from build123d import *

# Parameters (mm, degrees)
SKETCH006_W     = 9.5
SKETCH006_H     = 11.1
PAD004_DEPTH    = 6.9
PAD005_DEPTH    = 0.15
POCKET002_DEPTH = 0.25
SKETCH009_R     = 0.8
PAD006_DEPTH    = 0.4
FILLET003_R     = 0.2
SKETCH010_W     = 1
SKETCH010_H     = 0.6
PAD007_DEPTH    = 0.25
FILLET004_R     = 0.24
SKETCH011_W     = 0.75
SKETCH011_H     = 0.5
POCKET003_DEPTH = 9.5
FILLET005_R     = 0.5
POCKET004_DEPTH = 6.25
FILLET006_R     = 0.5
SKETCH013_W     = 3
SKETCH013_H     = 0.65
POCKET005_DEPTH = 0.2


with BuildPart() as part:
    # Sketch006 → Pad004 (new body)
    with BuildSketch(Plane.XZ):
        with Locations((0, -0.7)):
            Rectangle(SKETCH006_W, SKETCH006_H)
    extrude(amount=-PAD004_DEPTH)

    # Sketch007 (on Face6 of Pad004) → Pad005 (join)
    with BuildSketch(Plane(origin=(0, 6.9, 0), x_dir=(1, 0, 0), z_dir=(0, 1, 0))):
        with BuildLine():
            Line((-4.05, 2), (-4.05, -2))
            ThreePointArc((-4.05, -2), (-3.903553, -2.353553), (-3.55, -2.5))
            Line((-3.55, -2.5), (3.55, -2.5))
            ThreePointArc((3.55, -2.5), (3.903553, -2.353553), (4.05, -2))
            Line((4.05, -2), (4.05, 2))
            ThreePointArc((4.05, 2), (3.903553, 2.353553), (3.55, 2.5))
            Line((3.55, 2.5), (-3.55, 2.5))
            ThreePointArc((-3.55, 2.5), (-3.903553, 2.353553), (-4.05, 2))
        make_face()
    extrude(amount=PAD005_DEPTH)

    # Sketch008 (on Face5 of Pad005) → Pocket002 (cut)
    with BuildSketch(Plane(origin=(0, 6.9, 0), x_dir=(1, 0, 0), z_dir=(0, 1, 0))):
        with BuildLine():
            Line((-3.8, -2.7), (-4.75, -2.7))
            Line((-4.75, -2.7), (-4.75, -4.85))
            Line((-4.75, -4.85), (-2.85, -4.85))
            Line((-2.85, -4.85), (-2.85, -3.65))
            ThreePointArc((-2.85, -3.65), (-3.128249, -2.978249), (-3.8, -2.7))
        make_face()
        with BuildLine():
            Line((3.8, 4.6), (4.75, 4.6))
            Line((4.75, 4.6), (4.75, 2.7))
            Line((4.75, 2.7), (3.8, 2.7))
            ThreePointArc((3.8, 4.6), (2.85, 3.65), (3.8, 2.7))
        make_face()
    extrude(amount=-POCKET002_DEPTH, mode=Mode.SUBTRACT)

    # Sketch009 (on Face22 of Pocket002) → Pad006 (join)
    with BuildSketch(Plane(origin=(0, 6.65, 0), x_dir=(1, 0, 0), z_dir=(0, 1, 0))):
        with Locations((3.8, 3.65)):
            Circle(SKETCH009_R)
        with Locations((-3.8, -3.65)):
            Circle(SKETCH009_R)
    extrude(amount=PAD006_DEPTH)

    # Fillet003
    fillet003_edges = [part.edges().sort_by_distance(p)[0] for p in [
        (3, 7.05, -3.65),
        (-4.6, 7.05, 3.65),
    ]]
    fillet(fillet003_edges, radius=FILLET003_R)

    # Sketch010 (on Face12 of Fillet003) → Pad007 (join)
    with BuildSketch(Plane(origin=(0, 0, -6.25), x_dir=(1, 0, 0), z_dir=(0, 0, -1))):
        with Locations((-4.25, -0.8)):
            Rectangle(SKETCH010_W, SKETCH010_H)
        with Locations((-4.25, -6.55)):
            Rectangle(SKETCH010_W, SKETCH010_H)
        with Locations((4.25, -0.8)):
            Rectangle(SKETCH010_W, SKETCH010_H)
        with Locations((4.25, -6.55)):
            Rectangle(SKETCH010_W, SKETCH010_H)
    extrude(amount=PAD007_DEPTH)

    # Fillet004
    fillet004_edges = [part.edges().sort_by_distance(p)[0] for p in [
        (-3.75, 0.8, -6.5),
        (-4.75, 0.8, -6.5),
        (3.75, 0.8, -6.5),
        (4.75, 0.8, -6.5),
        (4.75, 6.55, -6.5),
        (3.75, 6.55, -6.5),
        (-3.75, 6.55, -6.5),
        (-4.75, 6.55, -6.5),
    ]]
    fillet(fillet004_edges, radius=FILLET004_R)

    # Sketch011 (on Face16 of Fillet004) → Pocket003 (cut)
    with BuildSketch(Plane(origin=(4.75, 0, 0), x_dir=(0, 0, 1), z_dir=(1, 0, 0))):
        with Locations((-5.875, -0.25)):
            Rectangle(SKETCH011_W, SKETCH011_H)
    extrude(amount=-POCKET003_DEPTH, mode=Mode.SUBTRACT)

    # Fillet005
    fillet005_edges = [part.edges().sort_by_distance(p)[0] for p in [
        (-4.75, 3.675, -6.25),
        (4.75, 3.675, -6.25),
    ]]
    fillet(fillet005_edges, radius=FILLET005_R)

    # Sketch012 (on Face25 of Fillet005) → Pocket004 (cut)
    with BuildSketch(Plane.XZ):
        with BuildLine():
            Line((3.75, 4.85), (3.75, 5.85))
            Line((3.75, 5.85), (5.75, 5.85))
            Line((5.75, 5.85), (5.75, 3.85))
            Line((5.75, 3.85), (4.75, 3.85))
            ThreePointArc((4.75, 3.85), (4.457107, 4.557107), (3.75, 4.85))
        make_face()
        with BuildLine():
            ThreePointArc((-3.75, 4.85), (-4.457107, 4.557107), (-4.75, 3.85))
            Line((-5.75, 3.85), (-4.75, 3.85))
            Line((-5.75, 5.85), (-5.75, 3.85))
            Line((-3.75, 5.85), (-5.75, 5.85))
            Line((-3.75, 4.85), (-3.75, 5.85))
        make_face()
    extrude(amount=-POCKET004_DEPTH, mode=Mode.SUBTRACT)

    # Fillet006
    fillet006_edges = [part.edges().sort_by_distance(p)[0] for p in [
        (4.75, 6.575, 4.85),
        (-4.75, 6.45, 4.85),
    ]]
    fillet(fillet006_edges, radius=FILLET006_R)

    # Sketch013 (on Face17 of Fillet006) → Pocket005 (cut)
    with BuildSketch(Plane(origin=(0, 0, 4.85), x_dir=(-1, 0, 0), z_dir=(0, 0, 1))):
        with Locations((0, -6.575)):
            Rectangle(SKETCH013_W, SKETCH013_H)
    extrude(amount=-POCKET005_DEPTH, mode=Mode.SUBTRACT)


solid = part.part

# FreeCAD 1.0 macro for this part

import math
import FreeCAD as App
import Part
import Sketcher


def edges_at(feature, points):
    """Names of the edges that pass closest to the given points."""
    edges = feature.Shape.Edges
    near = lambda p: min(range(len(edges)), key=lambda i: edges[i].distToShape(Part.Vertex(*p))[0])
    return sorted({f"Edge{near(p) + 1}" for p in points})

doc = App.newDocument("Part")
body = doc.addObject("PartDesign::Body", "Body")

# Sketch on XZ plane
sketch1 = body.newObject("Sketcher::SketchObject", "Sketch")
sketch1.AttachmentSupport = (doc.getObject("XZ_Plane"), [""])
sketch1.MapMode = "FlatFace"
sketch1.addGeometry([
    Part.LineSegment(App.Vector(-5, 5, 0), App.Vector(-5, -6, 0)),
    Part.LineSegment(App.Vector(-5, -6, 0), App.Vector(5, -6, 0)),
    Part.LineSegment(App.Vector(5, -6, 0), App.Vector(5, 5, 0)),
    Part.LineSegment(App.Vector(5, 5, 0), App.Vector(-5, 5, 0)),
], False)
sketch1.addConstraint([
    Sketcher.Constraint("Coincident", 0, 2, 1, 1),
    Sketcher.Constraint("Coincident", 1, 2, 2, 1),
    Sketcher.Constraint("Coincident", 2, 2, 3, 1),
    Sketcher.Constraint("Coincident", 3, 2, 0, 1),
    Sketcher.Constraint("Vertical", 0),
    Sketcher.Constraint("Horizontal", 1),
    Sketcher.Constraint("Vertical", 2),
    Sketcher.Constraint("Horizontal", 3),
    Sketcher.Constraint("DistanceX", 1, 1, 1, 2, 9.5),
    Sketcher.Constraint("DistanceY", 0, 2, 0, 1, 11.1),
    Sketcher.Constraint("DistanceX", 0, 2, -1, 1, 4.75),
    Sketcher.Constraint("DistanceY", 0, 2, -1, 1, 6.25),
])
pad1 = body.newObject("PartDesign::Pad", "Pad")
pad1.Profile = sketch1
pad1.Length = 6.9
pad1.Reversed = True

# Sketch on XZ plane
sketch2 = body.newObject("Sketcher::SketchObject", "Sketch001")
sketch2.AttachmentSupport = (doc.getObject("XZ_Plane"), [""])
sketch2.MapMode = "FlatFace"
sketch2.AttachmentOffset = App.Placement(App.Vector(0, 0, -6.9), App.Rotation())
sketch2.addGeometry([
    Part.LineSegment(App.Vector(-4, -2, 0), App.Vector(-4, 2, 0)),  # 0
    Part.ArcOfCircle(Part.Circle(App.Vector(-3.5, 2, 0), App.Vector(0, 0, 1), 0.5), math.radians(90), math.radians(180)),  # 1
    Part.LineSegment(App.Vector(-3.5, 2.5, 0), App.Vector(3.5, 2.5, 0)),  # 2
    Part.ArcOfCircle(Part.Circle(App.Vector(3.5, 2, 0), App.Vector(0, 0, 1), 0.5), math.radians(0), math.radians(90)),  # 3
    Part.LineSegment(App.Vector(4, 2, 0), App.Vector(4, -2, 0)),  # 4
    Part.ArcOfCircle(Part.Circle(App.Vector(3.5, -2, 0), App.Vector(0, 0, 1), 0.5), math.radians(-90), math.radians(0)),  # 5
    Part.LineSegment(App.Vector(3.5, -2.5, 0), App.Vector(-3.5, -2.5, 0)),  # 6
    Part.ArcOfCircle(Part.Circle(App.Vector(-3.5, -2, 0), App.Vector(0, 0, 1), 0.5), math.radians(-180), math.radians(-90)),  # 7
], False)
sketch2.addConstraint([
    Sketcher.Constraint("Coincident", 0, 2, 1, 2),
    Sketcher.Constraint("Coincident", 1, 1, 2, 1),
    Sketcher.Constraint("Coincident", 2, 2, 3, 2),
    Sketcher.Constraint("Coincident", 3, 1, 4, 1),
    Sketcher.Constraint("Coincident", 4, 2, 5, 2),
    Sketcher.Constraint("Coincident", 5, 1, 6, 1),
    Sketcher.Constraint("Coincident", 6, 2, 7, 2),
    Sketcher.Constraint("Coincident", 7, 1, 0, 1),
    Sketcher.Constraint("Vertical", 0),
    Sketcher.Constraint("Horizontal", 2),
    Sketcher.Constraint("Vertical", 4),
    Sketcher.Constraint("Horizontal", 6),
    Sketcher.Constraint("Equal", 1, 3),
    Sketcher.Constraint("Equal", 3, 5),
    Sketcher.Constraint("Equal", 5, 7),
    Sketcher.Constraint("Symmetric", 1, 3, 5, 3, -1, 1),
    Sketcher.Constraint("Horizontal", 3, 3, 0, 2),
    Sketcher.Constraint("Horizontal", 0, 2, 3, 1),
    Sketcher.Constraint("Horizontal", 7, 3, 4, 2),
    Sketcher.Constraint("Horizontal", 4, 2, 7, 1),
    Sketcher.Constraint("Vertical", 7, 3, 1, 1),
    Sketcher.Constraint("Vertical", 5, 3, 2, 2),
    Sketcher.Constraint("Vertical", 2, 2, 5, 1),
    Sketcher.Constraint("Vertical", 1, 1, 6, 2),
    Sketcher.Constraint("Radius", 1, 0.500001),
    Sketcher.Constraint("DistanceY", 0, 1, 0, 2, 4.0),
    Sketcher.Constraint("DistanceX", 2, 1, 2, 2, 7.1),
])
pad2 = body.newObject("PartDesign::Pad", "Pad001")
pad2.Profile = sketch2
pad2.Length = 0.15
pad2.Reversed = True

# Sketch on XZ plane
sketch3 = body.newObject("Sketcher::SketchObject", "Sketch002")
sketch3.AttachmentSupport = (doc.getObject("XZ_Plane"), [""])
sketch3.MapMode = "FlatFace"
sketch3.AttachmentOffset = App.Placement(App.Vector(0, 0, -6.9), App.Rotation())
sketch3.addGeometry([
    Part.LineSegment(App.Vector(-3.8, 2.7, 0), App.Vector(-4.8, 2.7, 0)),  # 0
    Part.LineSegment(App.Vector(-4.8, 2.7, 0), App.Vector(-4.8, 4.8, 0)),  # 1
    Part.LineSegment(App.Vector(-4.8, 4.8, 0), App.Vector(-2.9, 4.8, 0)),  # 2
    Part.LineSegment(App.Vector(-2.9, 4.8, 0), App.Vector(-2.9, 3.6, 0)),  # 3
    Part.ArcOfCircle(Part.Circle(App.Vector(-3.8, 3.7, 0), App.Vector(0, 0, 1), 1), math.radians(-90), math.radians(0)),  # 4
    Part.LineSegment(App.Vector(4.8, -4.6, 0), App.Vector(3.8, -4.6, 0)),  # 5
    Part.ArcOfCircle(Part.Circle(App.Vector(3.8, -3.6, 0), App.Vector(0, 0, 1), 0.9), math.radians(90), math.radians(270)),  # 6
    Part.LineSegment(App.Vector(3.8, -2.7, 0), App.Vector(4.8, -2.7, 0)),  # 7
    Part.LineSegment(App.Vector(4.8, -2.7, 0), App.Vector(4.8, -4.6, 0)),  # 8
], False)
sketch3.addConstraint([
    Sketcher.Constraint("Coincident", 0, 2, 1, 1),
    Sketcher.Constraint("Coincident", 1, 2, 2, 1),
    Sketcher.Constraint("Coincident", 2, 2, 3, 1),
    Sketcher.Constraint("Tangent", 3, 2, 4, 2),
    Sketcher.Constraint("Tangent", 4, 1, 0, 1),
    Sketcher.Constraint("Tangent", 5, 2, 6, 2),
    Sketcher.Constraint("Tangent", 6, 1, 7, 1),
    Sketcher.Constraint("Coincident", 7, 2, 8, 1),
    Sketcher.Constraint("Coincident", 8, 2, 5, 1),
    Sketcher.Constraint("Horizontal", 0),
    Sketcher.Constraint("Vertical", 1),
    Sketcher.Constraint("Horizontal", 2),
    Sketcher.Constraint("Vertical", 3),
    Sketcher.Constraint("Horizontal", 5),
    Sketcher.Constraint("Horizontal", 7),
    Sketcher.Constraint("Vertical", 8),
    Sketcher.Constraint("Equal", 4, 6),
    Sketcher.Constraint("Symmetric", 4, 3, 6, 3, -1, 1),
    Sketcher.Constraint("Equal", 0, 5),
    Sketcher.Constraint("Equal", 2, 8),
    Sketcher.Constraint("Radius", 4, 0.950002),
    Sketcher.Constraint("DistanceY", 3, 2, 3, 1, 1.2),
    Sketcher.Constraint("DistanceX", 4, 3, -1, 1, 3.800002),
    Sketcher.Constraint("DistanceY", -1, 1, 0, 2, 2.7),
])
pocket1 = body.newObject("PartDesign::Pocket", "Pocket")
pocket1.Profile = sketch3
pocket1.Length = 0.25
pocket1.Reversed = True

# Sketch on XZ plane
sketch4 = body.newObject("Sketcher::SketchObject", "Sketch003")
sketch4.AttachmentSupport = (doc.getObject("XZ_Plane"), [""])
sketch4.MapMode = "FlatFace"
sketch4.AttachmentOffset = App.Placement(App.Vector(0, 0, -6.65), App.Rotation())
sketch4.addGeometry([
    Part.Circle(App.Vector(3.8, -3.6, 0), App.Vector(0, 0, 1), 0.8),
    Part.Circle(App.Vector(-3.8, 3.6, 0), App.Vector(0, 0, 1), 0.8),
], False)
sketch4.addConstraint([
    Sketcher.Constraint("Equal", 0, 1),
    Sketcher.Constraint("Symmetric", 0, 3, 1, 3, -1, 1),
    Sketcher.Constraint("Diameter", 0, 1.6),
    Sketcher.Constraint("DistanceX", -1, 1, 0, 3, 3.8),
    Sketcher.Constraint("DistanceY", 0, 3, 1, 3, 7.3),
])
pad3 = body.newObject("PartDesign::Pad", "Pad002")
pad3.Profile = sketch4
pad3.Length = 0.4
pad3.Reversed = True
doc.recompute()

fillet = body.newObject("PartDesign::Fillet", "Fillet")
fillet.Base = (pad3, edges_at(pad3, [(3, 7.05, -3.65), (-4.6, 7.05, 3.65)]))
fillet.Radius = 0.2

# Sketch on XY plane
sketch5 = body.newObject("Sketcher::SketchObject", "Sketch004")
sketch5.AttachmentSupport = (doc.getObject("XY_Plane"), [""])
sketch5.MapMode = "FlatFace"
sketch5.AttachmentOffset = App.Placement(App.Vector(0, 0, -6.25), App.Rotation())
sketch5.addGeometry([
    Part.LineSegment(App.Vector(-4.8, 0.5, 0), App.Vector(-4.8, 1.1, 0)),  # 0
    Part.LineSegment(App.Vector(-4.8, 1.1, 0), App.Vector(-3.8, 1.1, 0)),  # 1
    Part.LineSegment(App.Vector(-3.8, 1.1, 0), App.Vector(-3.8, 0.5, 0)),  # 2
    Part.LineSegment(App.Vector(-3.8, 0.5, 0), App.Vector(-4.8, 0.5, 0)),  # 3
    Part.LineSegment(App.Vector(-4.8, 6.2, 0), App.Vector(-4.8, 6.8, 0)),  # 4
    Part.LineSegment(App.Vector(-4.8, 6.8, 0), App.Vector(-3.8, 6.8, 0)),  # 5
    Part.LineSegment(App.Vector(-3.8, 6.8, 0), App.Vector(-3.8, 6.2, 0)),  # 6
    Part.LineSegment(App.Vector(-3.8, 6.2, 0), App.Vector(-4.8, 6.2, 0)),  # 7
    Part.LineSegment(App.Vector(3.8, 0.5, 0), App.Vector(3.8, 1.1, 0)),  # 8
    Part.LineSegment(App.Vector(3.8, 1.1, 0), App.Vector(4.8, 1.1, 0)),  # 9
    Part.LineSegment(App.Vector(4.8, 1.1, 0), App.Vector(4.8, 0.5, 0)),  # 10
    Part.LineSegment(App.Vector(4.8, 0.5, 0), App.Vector(3.8, 0.5, 0)),  # 11
    Part.LineSegment(App.Vector(3.8, 6.2, 0), App.Vector(3.8, 6.8, 0)),  # 12
    Part.LineSegment(App.Vector(3.8, 6.8, 0), App.Vector(4.8, 6.8, 0)),  # 13
    Part.LineSegment(App.Vector(4.8, 6.8, 0), App.Vector(4.8, 6.2, 0)),  # 14
    Part.LineSegment(App.Vector(4.8, 6.2, 0), App.Vector(3.8, 6.2, 0)),  # 15
], False)
sketch5.addConstraint([
    Sketcher.Constraint("Coincident", 0, 2, 1, 1),
    Sketcher.Constraint("Coincident", 1, 2, 2, 1),
    Sketcher.Constraint("Coincident", 2, 2, 3, 1),
    Sketcher.Constraint("Coincident", 3, 2, 0, 1),
    Sketcher.Constraint("Coincident", 4, 2, 5, 1),
    Sketcher.Constraint("Coincident", 5, 2, 6, 1),
    Sketcher.Constraint("Coincident", 6, 2, 7, 1),
    Sketcher.Constraint("Coincident", 7, 2, 4, 1),
    Sketcher.Constraint("Coincident", 8, 2, 9, 1),
    Sketcher.Constraint("Coincident", 9, 2, 10, 1),
    Sketcher.Constraint("Coincident", 10, 2, 11, 1),
    Sketcher.Constraint("Coincident", 11, 2, 8, 1),
    Sketcher.Constraint("Coincident", 12, 2, 13, 1),
    Sketcher.Constraint("Coincident", 13, 2, 14, 1),
    Sketcher.Constraint("Coincident", 14, 2, 15, 1),
    Sketcher.Constraint("Coincident", 15, 2, 12, 1),
    Sketcher.Constraint("Vertical", 0),
    Sketcher.Constraint("Horizontal", 1),
    Sketcher.Constraint("Vertical", 2),
    Sketcher.Constraint("Horizontal", 3),
    Sketcher.Constraint("Vertical", 4),
    Sketcher.Constraint("Horizontal", 5),
    Sketcher.Constraint("Vertical", 6),
    Sketcher.Constraint("Horizontal", 7),
    Sketcher.Constraint("Vertical", 8),
    Sketcher.Constraint("Horizontal", 9),
    Sketcher.Constraint("Vertical", 10),
    Sketcher.Constraint("Horizontal", 11),
    Sketcher.Constraint("Vertical", 12),
    Sketcher.Constraint("Horizontal", 13),
    Sketcher.Constraint("Vertical", 14),
    Sketcher.Constraint("Horizontal", 15),
    Sketcher.Constraint("Symmetric", 1, 2, 8, 2, -2),
    Sketcher.Constraint("Symmetric", 3, 2, 10, 2, -2),
    Sketcher.Constraint("Symmetric", 5, 2, 12, 2, -2),
    Sketcher.Constraint("Symmetric", 7, 2, 14, 2, -2),
    Sketcher.Constraint("Vertical", 3, 2, 4, 2),
    Sketcher.Constraint("Vertical", 2, 2, 5, 2),
    Sketcher.Constraint("Equal", 2, 4),
    Sketcher.Constraint("DistanceX", 1, 1, 1, 2, 1.0),
    Sketcher.Constraint("DistanceY", 0, 1, 0, 2, 0.6),
    Sketcher.Constraint("DistanceY", -1, 1, 0, 2, 1.1),
    Sketcher.Constraint("DistanceX", 1, 2, 8, 2, 7.5),
    Sketcher.Constraint("DistanceY", -1, 1, 4, 2, 6.85),
])
pad4 = body.newObject("PartDesign::Pad", "Pad003")
pad4.Profile = sketch5
pad4.Length = 0.25
pad4.Reversed = True
doc.recompute()

fillet2 = body.newObject("PartDesign::Fillet", "Fillet001")
fillet2.Base = (pad4, edges_at(pad4, [
    (-3.75, 0.8, -6.5),
    (-4.75, 0.8, -6.5),
    (3.75, 0.8, -6.5),
    (4.75, 0.8, -6.5),
    (4.75, 6.55, -6.5),
    (3.75, 6.55, -6.5),
    (-3.75, 6.55, -6.5),
    (-4.75, 6.55, -6.5),
]))
fillet2.Radius = 0.24

# Sketch on YZ plane
sketch6 = body.newObject("Sketcher::SketchObject", "Sketch005")
sketch6.AttachmentSupport = (doc.getObject("YZ_Plane"), [""])
sketch6.MapMode = "FlatFace"
sketch6.AttachmentOffset = App.Placement(App.Vector(0, 0, 4.75), App.Rotation())
sketch6.addGeometry([
    Part.LineSegment(App.Vector(0, -6.2, 0), App.Vector(0.5, -6.2, 0)),
    Part.LineSegment(App.Vector(0.5, -6.2, 0), App.Vector(0.5, -5.5, 0)),
    Part.LineSegment(App.Vector(0.5, -5.5, 0), App.Vector(0, -5.5, 0)),
    Part.LineSegment(App.Vector(0, -5.5, 0), App.Vector(0, -6.2, 0)),
], False)
sketch6.addConstraint([
    Sketcher.Constraint("Coincident", 0, 2, 1, 1),
    Sketcher.Constraint("Coincident", 1, 2, 2, 1),
    Sketcher.Constraint("Coincident", 2, 2, 3, 1),
    Sketcher.Constraint("Coincident", 3, 2, 0, 1),
    Sketcher.Constraint("Horizontal", 0),
    Sketcher.Constraint("Vertical", 1),
    Sketcher.Constraint("Horizontal", 2),
    Sketcher.Constraint("Vertical", 3),
    Sketcher.Constraint("PointOnObject", 2, 2, -2),
    Sketcher.Constraint("DistanceX", 0, 1, 0, 2, 0.5),
    Sketcher.Constraint("DistanceY", 1, 1, 1, 2, 0.75),
    Sketcher.Constraint("DistanceY", 1, 2, -1, 1, 5.5),
])
pocket2 = body.newObject("PartDesign::Pocket", "Pocket001")
pocket2.Profile = sketch6
pocket2.Length = 9.5
doc.recompute()

fillet3 = body.newObject("PartDesign::Fillet", "Fillet002")
fillet3.Base = (pocket2, edges_at(pocket2, [(-4.75, 3.675, -6.25), (4.75, 3.675, -6.25)]))
fillet3.Radius = 0.5

# Sketch on XZ plane
sketch7 = body.newObject("Sketcher::SketchObject", "Sketch006")
sketch7.AttachmentSupport = (doc.getObject("XZ_Plane"), [""])
sketch7.MapMode = "FlatFace"
sketch7.addGeometry([
    Part.LineSegment(App.Vector(3.8, 5.8, 0), App.Vector(3.8, 4.8, 0)),  # 0
    Part.ArcOfCircle(Part.Circle(App.Vector(3.8, 3.9, 0), App.Vector(0, 0, 1), 1), math.radians(0), math.radians(90)),  # 1
    Part.LineSegment(App.Vector(4.8, 3.9, 0), App.Vector(5.8, 3.9, 0)),  # 2
    Part.LineSegment(App.Vector(5.8, 3.9, 0), App.Vector(5.8, 5.8, 0)),  # 3
    Part.LineSegment(App.Vector(5.8, 5.8, 0), App.Vector(3.8, 5.8, 0)),  # 4
    Part.ArcOfCircle(Part.Circle(App.Vector(-3.8, 3.9, 0), App.Vector(0, 0, 1), 1), math.radians(90), math.radians(180)),  # 5
    Part.LineSegment(App.Vector(-3.8, 4.8, 0), App.Vector(-3.8, 5.8, 0)),  # 6
    Part.LineSegment(App.Vector(-3.8, 5.8, 0), App.Vector(-5.8, 5.8, 0)),  # 7
    Part.LineSegment(App.Vector(-5.8, 5.8, 0), App.Vector(-5.8, 3.9, 0)),  # 8
    Part.LineSegment(App.Vector(-5.8, 3.9, 0), App.Vector(-4.8, 3.9, 0)),  # 9
], False)
sketch7.addConstraint([
    Sketcher.Constraint("Coincident", 0, 2, 1, 2),
    Sketcher.Constraint("Coincident", 1, 1, 2, 1),
    Sketcher.Constraint("Coincident", 2, 2, 3, 1),
    Sketcher.Constraint("Coincident", 3, 2, 4, 1),
    Sketcher.Constraint("Coincident", 4, 2, 0, 1),
    Sketcher.Constraint("Coincident", 5, 1, 6, 1),
    Sketcher.Constraint("Coincident", 6, 2, 7, 1),
    Sketcher.Constraint("Coincident", 7, 2, 8, 1),
    Sketcher.Constraint("Coincident", 8, 2, 9, 1),
    Sketcher.Constraint("Coincident", 9, 2, 5, 2),
    Sketcher.Constraint("Vertical", 0),
    Sketcher.Constraint("Horizontal", 2),
    Sketcher.Constraint("Vertical", 3),
    Sketcher.Constraint("Horizontal", 4),
    Sketcher.Constraint("Vertical", 6),
    Sketcher.Constraint("Horizontal", 7),
    Sketcher.Constraint("Vertical", 8),
    Sketcher.Constraint("Horizontal", 9),
    Sketcher.Constraint("Equal", 1, 5),
    Sketcher.Constraint("Symmetric", 1, 3, 5, 3, -2),
    Sketcher.Constraint("Symmetric", 4, 2, 6, 2, -2),
    Sketcher.Constraint("Symmetric", 2, 2, 8, 2, -2),
    Sketcher.Constraint("Horizontal", 5, 3, 1, 1),
    Sketcher.Constraint("Vertical", 1, 3, 0, 2),
    Sketcher.Constraint("Equal", 9, 0),
    Sketcher.Constraint("Radius", 1, 0.999999),
    Sketcher.Constraint("DistanceX", 2, 1, 2, 2, 1.0),
    Sketcher.Constraint("DistanceX", 5, 3, 1, 3, 7.500001),
    Sketcher.Constraint("DistanceY", -1, 1, 1, 3, 3.850001),
])
pocket3 = body.newObject("PartDesign::Pocket", "Pocket002")
pocket3.Profile = sketch7
pocket3.Length = 6.25
doc.recompute()

fillet4 = body.newObject("PartDesign::Fillet", "Fillet003")
fillet4.Base = (pocket3, edges_at(pocket3, [(4.75, 6.575, 4.85), (-4.75, 6.45, 4.85)]))
fillet4.Radius = 0.5

# Sketch on XY plane
sketch8 = body.newObject("Sketcher::SketchObject", "Sketch007")
sketch8.AttachmentSupport = (doc.getObject("XY_Plane"), [""])
sketch8.MapMode = "FlatFace"
sketch8.AttachmentOffset = App.Placement(App.Vector(0, 0, 4.85), App.Rotation())
sketch8.addGeometry([
    Part.LineSegment(App.Vector(1.5, 6.2, 0), App.Vector(1.5, 6.9, 0)),
    Part.LineSegment(App.Vector(1.5, 6.9, 0), App.Vector(-1.5, 6.9, 0)),
    Part.LineSegment(App.Vector(-1.5, 6.9, 0), App.Vector(-1.5, 6.2, 0)),
    Part.LineSegment(App.Vector(-1.5, 6.2, 0), App.Vector(1.5, 6.2, 0)),
], False)
sketch8.addConstraint([
    Sketcher.Constraint("Coincident", 0, 2, 1, 1),
    Sketcher.Constraint("Coincident", 1, 2, 2, 1),
    Sketcher.Constraint("Coincident", 2, 2, 3, 1),
    Sketcher.Constraint("Coincident", 3, 2, 0, 1),
    Sketcher.Constraint("Vertical", 0),
    Sketcher.Constraint("Horizontal", 1),
    Sketcher.Constraint("Vertical", 2),
    Sketcher.Constraint("Horizontal", 3),
    Sketcher.Constraint("DistanceX", 1, 2, 1, 1, 3.0),
    Sketcher.Constraint("DistanceY", 0, 1, 0, 2, 0.65),
    Sketcher.Constraint("DistanceX", -1, 1, 0, 2, 1.5),
    Sketcher.Constraint("DistanceY", -1, 1, 0, 2, 6.9),
])
pocket4 = body.newObject("PartDesign::Pocket", "Pocket003")
pocket4.Profile = sketch8
pocket4.Length = 0.2

doc.recompute()
